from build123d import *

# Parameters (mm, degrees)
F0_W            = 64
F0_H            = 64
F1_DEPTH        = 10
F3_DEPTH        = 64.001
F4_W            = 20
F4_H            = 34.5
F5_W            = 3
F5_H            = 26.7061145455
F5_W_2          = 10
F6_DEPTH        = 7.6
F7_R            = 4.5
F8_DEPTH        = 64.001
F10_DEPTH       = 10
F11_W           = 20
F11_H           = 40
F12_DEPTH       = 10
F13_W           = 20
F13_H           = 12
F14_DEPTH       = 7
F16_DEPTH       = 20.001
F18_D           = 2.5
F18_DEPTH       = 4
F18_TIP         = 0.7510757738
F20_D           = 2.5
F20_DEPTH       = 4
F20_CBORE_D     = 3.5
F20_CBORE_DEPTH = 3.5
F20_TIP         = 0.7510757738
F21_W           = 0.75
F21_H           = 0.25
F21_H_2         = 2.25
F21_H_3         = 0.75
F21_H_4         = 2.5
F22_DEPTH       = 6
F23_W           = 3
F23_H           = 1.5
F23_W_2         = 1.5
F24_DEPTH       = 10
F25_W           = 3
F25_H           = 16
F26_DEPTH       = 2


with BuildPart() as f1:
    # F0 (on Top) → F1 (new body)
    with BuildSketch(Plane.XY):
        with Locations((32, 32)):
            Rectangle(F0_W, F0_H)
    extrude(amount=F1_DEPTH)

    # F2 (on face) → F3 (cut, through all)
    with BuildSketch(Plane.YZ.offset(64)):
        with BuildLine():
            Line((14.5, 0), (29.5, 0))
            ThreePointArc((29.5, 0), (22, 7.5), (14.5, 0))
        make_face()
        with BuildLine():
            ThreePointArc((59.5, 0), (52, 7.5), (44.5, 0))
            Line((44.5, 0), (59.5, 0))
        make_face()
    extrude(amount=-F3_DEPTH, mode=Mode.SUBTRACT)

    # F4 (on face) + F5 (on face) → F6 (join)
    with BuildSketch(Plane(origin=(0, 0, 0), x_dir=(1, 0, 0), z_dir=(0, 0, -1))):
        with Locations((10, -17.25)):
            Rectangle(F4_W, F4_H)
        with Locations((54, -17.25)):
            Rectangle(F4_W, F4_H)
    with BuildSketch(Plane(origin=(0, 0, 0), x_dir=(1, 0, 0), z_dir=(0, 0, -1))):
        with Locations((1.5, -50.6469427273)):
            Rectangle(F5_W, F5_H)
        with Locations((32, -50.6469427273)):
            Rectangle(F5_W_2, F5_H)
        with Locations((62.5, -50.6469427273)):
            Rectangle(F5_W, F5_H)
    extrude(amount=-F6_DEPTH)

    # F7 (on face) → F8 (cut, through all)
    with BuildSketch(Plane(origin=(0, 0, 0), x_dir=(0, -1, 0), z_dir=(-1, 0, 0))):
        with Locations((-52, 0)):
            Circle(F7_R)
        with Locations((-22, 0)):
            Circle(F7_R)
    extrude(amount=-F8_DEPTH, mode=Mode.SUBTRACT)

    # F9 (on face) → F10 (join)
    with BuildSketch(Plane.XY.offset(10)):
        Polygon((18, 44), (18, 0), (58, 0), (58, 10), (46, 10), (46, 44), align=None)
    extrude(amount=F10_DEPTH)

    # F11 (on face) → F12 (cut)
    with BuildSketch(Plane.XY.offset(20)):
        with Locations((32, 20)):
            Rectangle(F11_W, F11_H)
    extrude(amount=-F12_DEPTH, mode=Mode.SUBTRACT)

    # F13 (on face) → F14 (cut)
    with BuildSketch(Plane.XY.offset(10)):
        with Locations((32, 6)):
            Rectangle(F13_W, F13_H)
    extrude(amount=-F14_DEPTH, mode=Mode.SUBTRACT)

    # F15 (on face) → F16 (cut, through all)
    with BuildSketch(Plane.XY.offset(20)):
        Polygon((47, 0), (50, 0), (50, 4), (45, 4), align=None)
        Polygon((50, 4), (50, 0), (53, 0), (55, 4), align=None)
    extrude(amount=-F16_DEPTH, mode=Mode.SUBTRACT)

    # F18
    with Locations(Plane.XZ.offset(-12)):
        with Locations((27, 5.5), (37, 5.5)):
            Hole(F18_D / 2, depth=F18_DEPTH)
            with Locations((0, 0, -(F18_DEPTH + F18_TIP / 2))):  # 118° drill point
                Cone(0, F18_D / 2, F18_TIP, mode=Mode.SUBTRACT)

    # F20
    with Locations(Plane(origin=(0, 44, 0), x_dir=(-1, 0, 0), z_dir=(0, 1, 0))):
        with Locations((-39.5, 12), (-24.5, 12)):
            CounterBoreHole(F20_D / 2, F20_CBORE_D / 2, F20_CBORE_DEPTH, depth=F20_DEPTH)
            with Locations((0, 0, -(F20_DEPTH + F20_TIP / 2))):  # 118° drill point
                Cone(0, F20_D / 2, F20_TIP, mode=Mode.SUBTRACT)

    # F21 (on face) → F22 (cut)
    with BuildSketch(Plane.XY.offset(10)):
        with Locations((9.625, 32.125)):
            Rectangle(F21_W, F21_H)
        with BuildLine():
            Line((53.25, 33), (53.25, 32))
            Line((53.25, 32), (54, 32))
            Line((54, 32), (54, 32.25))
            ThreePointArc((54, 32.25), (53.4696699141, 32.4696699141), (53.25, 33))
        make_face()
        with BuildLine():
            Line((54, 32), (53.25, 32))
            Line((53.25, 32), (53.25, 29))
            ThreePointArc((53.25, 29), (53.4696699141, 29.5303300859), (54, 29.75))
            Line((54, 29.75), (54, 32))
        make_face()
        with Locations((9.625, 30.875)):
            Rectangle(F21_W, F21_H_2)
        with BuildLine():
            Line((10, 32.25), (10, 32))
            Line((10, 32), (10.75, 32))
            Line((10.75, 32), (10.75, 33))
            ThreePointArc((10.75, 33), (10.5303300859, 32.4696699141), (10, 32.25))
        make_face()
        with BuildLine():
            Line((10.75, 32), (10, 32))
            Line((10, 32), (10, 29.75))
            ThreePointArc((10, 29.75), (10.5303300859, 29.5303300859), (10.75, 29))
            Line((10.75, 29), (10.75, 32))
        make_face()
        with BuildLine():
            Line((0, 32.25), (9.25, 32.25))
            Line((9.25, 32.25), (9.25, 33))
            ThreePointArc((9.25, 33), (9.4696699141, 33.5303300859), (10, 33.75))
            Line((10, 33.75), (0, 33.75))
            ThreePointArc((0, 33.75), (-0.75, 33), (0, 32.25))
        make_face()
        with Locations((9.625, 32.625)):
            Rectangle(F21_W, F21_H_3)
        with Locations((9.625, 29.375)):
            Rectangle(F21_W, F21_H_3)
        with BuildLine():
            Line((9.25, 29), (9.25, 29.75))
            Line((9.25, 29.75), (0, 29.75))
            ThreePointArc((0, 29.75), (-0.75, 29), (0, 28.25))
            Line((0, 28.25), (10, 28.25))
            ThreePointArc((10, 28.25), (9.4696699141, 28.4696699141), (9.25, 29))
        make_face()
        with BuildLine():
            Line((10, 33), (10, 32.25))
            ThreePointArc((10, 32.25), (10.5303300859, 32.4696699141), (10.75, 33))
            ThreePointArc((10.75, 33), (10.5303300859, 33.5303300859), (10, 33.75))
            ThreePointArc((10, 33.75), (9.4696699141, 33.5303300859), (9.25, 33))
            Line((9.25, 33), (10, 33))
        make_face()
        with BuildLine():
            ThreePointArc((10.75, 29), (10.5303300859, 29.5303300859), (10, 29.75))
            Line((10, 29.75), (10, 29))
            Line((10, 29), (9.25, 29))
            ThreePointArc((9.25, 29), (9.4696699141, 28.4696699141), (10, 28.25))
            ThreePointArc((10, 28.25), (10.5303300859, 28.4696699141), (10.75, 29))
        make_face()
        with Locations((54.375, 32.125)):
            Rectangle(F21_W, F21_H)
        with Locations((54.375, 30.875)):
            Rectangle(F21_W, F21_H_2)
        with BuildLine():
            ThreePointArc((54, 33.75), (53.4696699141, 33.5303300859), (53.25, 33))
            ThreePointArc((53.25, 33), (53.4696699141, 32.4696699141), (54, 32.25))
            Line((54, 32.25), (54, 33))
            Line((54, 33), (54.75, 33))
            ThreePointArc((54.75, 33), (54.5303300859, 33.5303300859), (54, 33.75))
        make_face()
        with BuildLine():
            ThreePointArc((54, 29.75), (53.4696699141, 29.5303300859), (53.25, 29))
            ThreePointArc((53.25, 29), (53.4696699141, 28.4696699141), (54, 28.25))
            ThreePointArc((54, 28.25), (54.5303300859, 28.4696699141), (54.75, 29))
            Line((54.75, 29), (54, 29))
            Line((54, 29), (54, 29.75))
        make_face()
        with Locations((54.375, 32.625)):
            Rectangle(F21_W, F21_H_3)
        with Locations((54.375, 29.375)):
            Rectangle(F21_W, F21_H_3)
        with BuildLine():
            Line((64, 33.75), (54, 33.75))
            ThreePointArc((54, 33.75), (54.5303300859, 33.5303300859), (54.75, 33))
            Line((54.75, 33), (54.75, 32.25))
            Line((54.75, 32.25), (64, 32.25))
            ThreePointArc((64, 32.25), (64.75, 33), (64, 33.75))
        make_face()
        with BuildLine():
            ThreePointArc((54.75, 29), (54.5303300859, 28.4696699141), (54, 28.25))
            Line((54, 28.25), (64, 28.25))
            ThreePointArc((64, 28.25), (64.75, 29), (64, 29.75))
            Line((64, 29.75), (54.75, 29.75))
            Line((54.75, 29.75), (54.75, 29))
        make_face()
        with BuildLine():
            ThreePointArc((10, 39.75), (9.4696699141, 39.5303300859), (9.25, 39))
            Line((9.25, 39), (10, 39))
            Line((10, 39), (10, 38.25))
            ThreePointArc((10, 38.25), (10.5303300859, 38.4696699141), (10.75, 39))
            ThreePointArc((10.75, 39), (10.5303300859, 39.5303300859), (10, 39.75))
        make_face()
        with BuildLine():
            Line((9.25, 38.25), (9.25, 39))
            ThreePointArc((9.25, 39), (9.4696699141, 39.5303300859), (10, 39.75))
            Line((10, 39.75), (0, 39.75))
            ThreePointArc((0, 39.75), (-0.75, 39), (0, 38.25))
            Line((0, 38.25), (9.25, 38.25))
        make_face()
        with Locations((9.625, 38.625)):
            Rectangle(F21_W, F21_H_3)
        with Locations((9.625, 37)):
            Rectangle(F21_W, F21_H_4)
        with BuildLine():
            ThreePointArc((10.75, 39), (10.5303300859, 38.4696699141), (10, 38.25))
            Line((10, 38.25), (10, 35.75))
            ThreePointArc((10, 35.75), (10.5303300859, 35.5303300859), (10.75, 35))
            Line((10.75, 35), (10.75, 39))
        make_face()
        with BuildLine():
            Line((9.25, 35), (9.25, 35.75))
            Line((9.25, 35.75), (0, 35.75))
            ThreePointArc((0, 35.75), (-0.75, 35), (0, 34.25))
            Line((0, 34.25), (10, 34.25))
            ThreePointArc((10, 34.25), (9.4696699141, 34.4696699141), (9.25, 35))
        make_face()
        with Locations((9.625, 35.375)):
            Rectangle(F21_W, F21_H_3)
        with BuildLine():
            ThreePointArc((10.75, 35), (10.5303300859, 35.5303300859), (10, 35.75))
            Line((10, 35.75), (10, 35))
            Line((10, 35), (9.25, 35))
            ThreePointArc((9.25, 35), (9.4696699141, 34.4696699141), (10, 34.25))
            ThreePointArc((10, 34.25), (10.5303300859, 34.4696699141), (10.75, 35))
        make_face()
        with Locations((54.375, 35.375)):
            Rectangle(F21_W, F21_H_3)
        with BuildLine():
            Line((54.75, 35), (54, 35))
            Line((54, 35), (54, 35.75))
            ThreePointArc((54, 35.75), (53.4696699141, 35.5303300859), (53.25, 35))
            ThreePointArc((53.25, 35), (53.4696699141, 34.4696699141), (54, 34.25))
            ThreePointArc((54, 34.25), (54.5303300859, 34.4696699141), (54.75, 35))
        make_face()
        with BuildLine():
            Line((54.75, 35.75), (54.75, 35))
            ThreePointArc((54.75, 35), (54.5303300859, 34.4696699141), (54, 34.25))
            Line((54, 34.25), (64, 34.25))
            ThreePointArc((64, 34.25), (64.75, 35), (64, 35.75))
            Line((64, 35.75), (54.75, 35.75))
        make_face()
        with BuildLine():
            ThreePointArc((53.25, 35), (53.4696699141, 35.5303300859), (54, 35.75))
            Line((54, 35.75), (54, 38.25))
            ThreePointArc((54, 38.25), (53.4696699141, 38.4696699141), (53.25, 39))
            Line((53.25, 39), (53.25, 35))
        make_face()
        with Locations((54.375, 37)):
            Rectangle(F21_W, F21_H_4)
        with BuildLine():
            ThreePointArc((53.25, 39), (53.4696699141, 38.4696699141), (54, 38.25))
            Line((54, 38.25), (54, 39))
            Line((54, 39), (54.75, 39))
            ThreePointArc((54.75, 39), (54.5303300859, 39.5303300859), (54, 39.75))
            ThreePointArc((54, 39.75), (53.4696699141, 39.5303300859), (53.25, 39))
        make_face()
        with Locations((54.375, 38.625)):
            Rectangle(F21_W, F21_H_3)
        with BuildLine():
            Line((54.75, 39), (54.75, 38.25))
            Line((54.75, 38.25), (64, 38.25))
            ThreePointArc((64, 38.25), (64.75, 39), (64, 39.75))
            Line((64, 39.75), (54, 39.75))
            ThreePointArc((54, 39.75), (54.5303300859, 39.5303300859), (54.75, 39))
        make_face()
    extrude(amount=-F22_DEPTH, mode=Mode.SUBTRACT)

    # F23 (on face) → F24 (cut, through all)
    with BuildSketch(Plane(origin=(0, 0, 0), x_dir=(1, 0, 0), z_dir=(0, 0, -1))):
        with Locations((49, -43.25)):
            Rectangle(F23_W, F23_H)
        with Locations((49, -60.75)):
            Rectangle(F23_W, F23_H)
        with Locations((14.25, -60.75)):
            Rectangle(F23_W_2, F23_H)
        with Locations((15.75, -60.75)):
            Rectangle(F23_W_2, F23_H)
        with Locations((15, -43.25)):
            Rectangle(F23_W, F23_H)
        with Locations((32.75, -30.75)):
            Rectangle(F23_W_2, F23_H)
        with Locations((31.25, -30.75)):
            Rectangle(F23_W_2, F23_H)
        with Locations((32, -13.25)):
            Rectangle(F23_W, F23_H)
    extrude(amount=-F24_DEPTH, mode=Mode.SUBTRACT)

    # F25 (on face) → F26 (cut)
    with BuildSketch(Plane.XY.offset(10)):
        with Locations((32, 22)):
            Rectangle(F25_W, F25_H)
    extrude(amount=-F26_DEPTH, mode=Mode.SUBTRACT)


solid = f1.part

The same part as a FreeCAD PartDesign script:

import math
import FreeCAD as App
import Part
import Sketcher

V = App.Vector
Q = App.Units.Quantity

doc = App.newDocument("Part")
body = doc.addObject("PartDesign::Body", "Body")

# Sketch on XY plane
sketch1 = body.newObject("Sketcher::SketchObject", "Sketch")
sketch1.AttachmentSupport = (doc.getObject("XY_Plane"), [""])
sketch1.MapMode = "FlatFace"
sketch1.addGeometry([
    Part.LineSegment(V(0, 64, 0), V(0, 0, 0)),
    Part.LineSegment(V(0, 0, 0), V(64, 0, 0)),
    Part.LineSegment(V(64, 0, 0), V(64, 64, 0)),
    Part.LineSegment(V(64, 64, 0), V(0, 64, 0)),
], False)
sketch1.addConstraint([
    Sketcher.Constraint("Coincident", 0, 2, 1, 1),
    Sketcher.Constraint("Coincident", 1, 2, 2, 1),
    Sketcher.Constraint("Coincident", 2, 2, 3, 1),
    Sketcher.Constraint("Coincident", 3, 2, 0, 1),
    Sketcher.Constraint("Vertical", 0),
    Sketcher.Constraint("Horizontal", 1),
    Sketcher.Constraint("Vertical", 2),
    Sketcher.Constraint("Horizontal", 3),
    Sketcher.Constraint("Coincident", 0, 2, -1, 1),
    Sketcher.Constraint("Equal", 3, 0),
    Sketcher.Constraint("DistanceX", 1, 1, 1, 2, Q("64 mm")),
])
pad1 = body.newObject("PartDesign::Pad", "Pad")
pad1.Profile = sketch1
pad1.Length = 10

# Sketch on YZ plane
sketch2 = body.newObject("Sketcher::SketchObject", "Sketch001")
sketch2.AttachmentSupport = (doc.getObject("YZ_Plane"), [""])
sketch2.MapMode = "FlatFace"
sketch2.AttachmentOffset = App.Placement(V(0, 0, 64), App.Rotation())
sketch2.addGeometry([
    Part.LineSegment(V(14, 0, 0), V(30, 0, 0)),
    Part.ArcOfCircle(Part.Circle(V(22, 0, 0), V(0, 0, 1), 8), math.radians(0), math.radians(180)),
    Part.ArcOfCircle(Part.Circle(V(52, 0, 0), V(0, 0, 1), 8), math.radians(0), math.radians(180)),
    Part.LineSegment(V(44, 0, 0), V(60, 0, 0)),
], False)
sketch2.addConstraint([
    Sketcher.Constraint("Coincident", 0, 1, 1, 2),
    Sketcher.Constraint("Coincident", 1, 1, 0, 2),
    Sketcher.Constraint("Coincident", 2, 1, 3, 2),
    Sketcher.Constraint("Coincident", 3, 1, 2, 2),
    Sketcher.Constraint("Horizontal", 0),
    Sketcher.Constraint("Horizontal", 3),
    Sketcher.Constraint("Equal", 1, 2),
    Sketcher.Constraint("PointOnObject", 1, 3, -1),
    Sketcher.Constraint("PointOnObject", 2, 3, -1),
    Sketcher.Constraint("PointOnObject", 0, 1, -1),
    Sketcher.Constraint("PointOnObject", 2, 1, -1),
    Sketcher.Constraint("Radius", 1, Q("7.5 mm")),
    Sketcher.Constraint("DistanceX", -1, 1, 1, 3, Q("22 mm")),
    Sketcher.Constraint("DistanceX", -1, 1, 2, 3, Q("52 mm")),
])
pocket1 = body.newObject("PartDesign::Pocket", "Pocket")
pocket1.Profile = sketch2
pocket1.Type = "ThroughAll"

# Sketch on XY plane
sketch3 = body.newObject("Sketcher::SketchObject", "Sketch002")
sketch3.AttachmentSupport = (doc.getObject("XY_Plane"), [""])
sketch3.MapMode = "FlatFace"
sketch3.addGeometry([
    Part.LineSegment(V(0, 0, 0), V(0, 34.5, 0)),  # 0
    Part.LineSegment(V(0, 34.5, 0), V(20, 34.5, 0)),  # 1
    Part.LineSegment(V(20, 34.5, 0), V(20, 0, 0)),  # 2
    Part.LineSegment(V(20, 0, 0), V(0, 0, 0)),  # 3
    Part.LineSegment(V(44, 0, 0), V(44, 34.5, 0)),  # 4
    Part.LineSegment(V(44, 34.5, 0), V(64, 34.5, 0)),  # 5
    Part.LineSegment(V(64, 34.5, 0), V(64, 0, 0)),  # 6
    Part.LineSegment(V(64, 0, 0), V(44, 0, 0)),  # 7
    Part.LineSegment(V(0, 37.3, 0), V(0, 64, 0)),  # 8
    Part.LineSegment(V(0, 64, 0), V(3, 64, 0)),  # 9
    Part.LineSegment(V(3, 64, 0), V(3, 37.3, 0)),  # 10
    Part.LineSegment(V(3, 37.3, 0), V(0, 37.3, 0)),  # 11
    Part.LineSegment(V(27, 37.3, 0), V(27, 64, 0)),  # 12
    Part.LineSegment(V(27, 64, 0), V(37, 64, 0)),  # 13
    Part.LineSegment(V(37, 64, 0), V(37, 37.3, 0)),  # 14
    Part.LineSegment(V(37, 37.3, 0), V(27, 37.3, 0)),  # 15
    Part.LineSegment(V(61, 37.3, 0), V(61, 64, 0)),  # 16
    Part.LineSegment(V(61, 64, 0), V(64, 64, 0)),  # 17
    Part.LineSegment(V(64, 64, 0), V(64, 37.3, 0)),  # 18
    Part.LineSegment(V(64, 37.3, 0), V(61, 37.3, 0)),  # 19
], False)
sketch3.addConstraint([
    Sketcher.Constraint("Coincident", 0, 2, 1, 1),
    Sketcher.Constraint("Coincident", 1, 2, 2, 1),
    Sketcher.Constraint("Coincident", 2, 2, 3, 1),
    Sketcher.Constraint("Coincident", 3, 2, 0, 1),
    Sketcher.Constraint("Coincident", 4, 2, 5, 1),
    Sketcher.Constraint("Coincident", 5, 2, 6, 1),
    Sketcher.Constraint("Coincident", 6, 2, 7, 1),
    Sketcher.Constraint("Coincident", 7, 2, 4, 1),
    Sketcher.Constraint("Coincident", 8, 2, 9, 1),
    Sketcher.Constraint("Coincident", 9, 2, 10, 1),
    Sketcher.Constraint("Coincident", 10, 2, 11, 1),
    Sketcher.Constraint("Coincident", 11, 2, 8, 1),
    Sketcher.Constraint("Coincident", 12, 2, 13, 1),
    Sketcher.Constraint("Coincident", 13, 2, 14, 1),
    Sketcher.Constraint("Coincident", 14, 2, 15, 1),
    Sketcher.Constraint("Coincident", 15, 2, 12, 1),
    Sketcher.Constraint("Coincident", 16, 2, 17, 1),
    Sketcher.Constraint("Coincident", 17, 2, 18, 1),
    Sketcher.Constraint("Coincident", 18, 2, 19, 1),
    Sketcher.Constraint("Coincident", 19, 2, 16, 1),
    Sketcher.Constraint("Vertical", 0),
    Sketcher.Constraint("Horizontal", 1),
    Sketcher.Constraint("Vertical", 2),
    Sketcher.Constraint("Horizontal", 3),
    Sketcher.Constraint("Vertical", 4),
    Sketcher.Constraint("Horizontal", 5),
    Sketcher.Constraint("Vertical", 6),
    Sketcher.Constraint("Horizontal", 7),
    Sketcher.Constraint("Vertical", 8),
    Sketcher.Constraint("Horizontal", 9),
    Sketcher.Constraint("Vertical", 10),
    Sketcher.Constraint("Horizontal", 11),
    Sketcher.Constraint("Vertical", 12),
    Sketcher.Constraint("Horizontal", 13),
    Sketcher.Constraint("Vertical", 14),
    Sketcher.Constraint("Horizontal", 15),
    Sketcher.Constraint("Vertical", 16),
    Sketcher.Constraint("Horizontal", 17),
    Sketcher.Constraint("Vertical", 18),
    Sketcher.Constraint("Horizontal", 19),
    Sketcher.Constraint("Coincident", 3, 2, -1, 1),
    Sketcher.Constraint("PointOnObject", 6, 2, -1),
    Sketcher.Constraint("PointOnObject", 8, 2, -2),
    Sketcher.Constraint("Horizontal", 1, 2, 4, 2),
    Sketcher.Constraint("Horizontal", 9, 2, 12, 2),
    Sketcher.Constraint("Horizontal", 11, 2, 14, 2),
    Sketcher.Constraint("Horizontal", 13, 2, 16, 2),
    Sketcher.Constraint("Horizontal", 15, 2, 18, 2),
    Sketcher.Constraint("Vertical", 6, 2, 17, 2),
    Sketcher.Constraint("Equal", 3, 5),
    Sketcher.Constraint("Equal", 11, 17),
    Sketcher.Constraint("DistanceX", 1, 1, 1, 2, Q("20 mm")),
    Sketcher.Constraint("DistanceX", 9, 1, 9, 2, Q("3 mm")),
    Sketcher.Constraint("DistanceX", 13, 1, 13, 2, Q("10 mm")),
    Sketcher.Constraint("DistanceY", 0, 1, 0, 2, Q("34.5 mm")),
    Sketcher.Constraint("DistanceX", -1, 1, 4, 2, Q("44 mm")),
    Sketcher.Constraint("DistanceY", -1, 1, 8, 2, Q("64 mm")),
    Sketcher.Constraint("DistanceX", -1, 1, 12, 2, Q("27 mm")),
    Sketcher.Constraint("DistanceY", 8, 1, 8, 2, Q("26.706115 mm")),
])
pad2 = body.newObject("PartDesign::Pad", "Pad001")
pad2.Profile = sketch3
pad2.Length = 7.6

# Sketch on YZ plane
sketch4 = body.newObject("Sketcher::SketchObject", "Sketch003")
sketch4.AttachmentSupport = (doc.getObject("YZ_Plane"), [""])
sketch4.MapMode = "FlatFace"
sketch4.addGeometry([
    Part.Circle(V(52, 0, 0), V(0, 0, 1), 4.5),
    Part.Circle(V(22, 0, 0), V(0, 0, 1), 4.5),
], False)
sketch4.addConstraint([
    Sketcher.Constraint("Equal", 0, 1),
    Sketcher.Constraint("PointOnObject", 0, 3, -1),
    Sketcher.Constraint("PointOnObject", 1, 3, -1),
    Sketcher.Constraint("Diameter", 0, Q("9 mm")),
    Sketcher.Constraint("DistanceX", -1, 1, 0, 3, Q("52 mm")),
    Sketcher.Constraint("DistanceX", -1, 1, 1, 3, Q("22 mm")),
])
pocket2 = body.newObject("PartDesign::Pocket", "Pocket001")
pocket2.Profile = sketch4
pocket2.Type = "ThroughAll"
pocket2.Reversed = True

# Sketch on XY plane
sketch5 = body.newObject("Sketcher::SketchObject", "Sketch004")
sketch5.AttachmentSupport = (doc.getObject("XY_Plane"), [""])
sketch5.MapMode = "FlatFace"
sketch5.AttachmentOffset = App.Placement(V(0, 0, 10), App.Rotation())
sketch5.addGeometry([
    Part.LineSegment(V(18, 44, 0), V(18, 0, 0)),  # 0
    Part.LineSegment(V(18, 0, 0), V(58, 0, 0)),  # 1
    Part.LineSegment(V(58, 0, 0), V(58, 10, 0)),  # 2
    Part.LineSegment(V(58, 10, 0), V(46, 10, 0)),  # 3
    Part.LineSegment(V(46, 10, 0), V(46, 44, 0)),  # 4
    Part.LineSegment(V(46, 44, 0), V(18, 44, 0)),  # 5
], False)
sketch5.addConstraint([
    Sketcher.Constraint("Coincident", 0, 2, 1, 1),
    Sketcher.Constraint("Coincident", 1, 2, 2, 1),
    Sketcher.Constraint("Coincident", 2, 2, 3, 1),
    Sketcher.Constraint("Coincident", 3, 2, 4, 1),
    Sketcher.Constraint("Coincident", 4, 2, 5, 1),
    Sketcher.Constraint("Coincident", 5, 2, 0, 1),
    Sketcher.Constraint("Vertical", 0),
    Sketcher.Constraint("Horizontal", 1),
    Sketcher.Constraint("Vertical", 2),
    Sketcher.Constraint("Horizontal", 3),
    Sketcher.Constraint("Vertical", 4),
    Sketcher.Constraint("Horizontal", 5),
    Sketcher.Constraint("PointOnObject", 0, 2, -1),
    Sketcher.Constraint("DistanceX", 1, 1, 1, 2, Q("40 mm")),
    Sketcher.Constraint("DistanceX", 3, 2, 3, 1, Q("12 mm")),
    Sketcher.Constraint("DistanceY", 0, 2, 0, 1, Q("44 mm")),
    Sketcher.Constraint("DistanceY", 2, 1, 2, 2, Q("10 mm")),
    Sketcher.Constraint("DistanceX", -1, 1, 0, 2, Q("18 mm")),
])
pad3 = body.newObject("PartDesign::Pad", "Pad002")
pad3.Profile = sketch5
pad3.Length = 10

# Sketch on XY plane
sketch6 = body.newObject("Sketcher::SketchObject", "Sketch005")
sketch6.AttachmentSupport = (doc.getObject("XY_Plane"), [""])
sketch6.MapMode = "FlatFace"
sketch6.AttachmentOffset = App.Placement(V(0, 0, 20), App.Rotation())
sketch6.addGeometry([
    Part.LineSegment(V(22, 40, 0), V(22, 0, 0)),
    Part.LineSegment(V(22, 0, 0), V(42, 0, 0)),
    Part.LineSegment(V(42, 0, 0), V(42, 40, 0)),
    Part.LineSegment(V(42, 40, 0), V(22, 40, 0)),
], False)
sketch6.addConstraint([
    Sketcher.Constraint("Coincident", 0, 2, 1, 1),
    Sketcher.Constraint("Coincident", 1, 2, 2, 1),
    Sketcher.Constraint("Coincident", 2, 2, 3, 1),
    Sketcher.Constraint("Coincident", 3, 2, 0, 1),
    Sketcher.Constraint("Vertical", 0),
    Sketcher.Constraint("Horizontal", 1),
    Sketcher.Constraint("Vertical", 2),
    Sketcher.Constraint("Horizontal", 3),
    Sketcher.Constraint("PointOnObject", 0, 2, -1),
    Sketcher.Constraint("DistanceX", 1, 1, 1, 2, Q("20 mm")),
    Sketcher.Constraint("DistanceY", 0, 2, 0, 1, Q("40 mm")),
    Sketcher.Constraint("DistanceX", -1, 1, 0, 2, Q("22 mm")),
])
pocket3 = body.newObject("PartDesign::Pocket", "Pocket002")
pocket3.Profile = sketch6
pocket3.Length = 10

# Sketch on XY plane
sketch7 = body.newObject("Sketcher::SketchObject", "Sketch006")
sketch7.AttachmentSupport = (doc.getObject("XY_Plane"), [""])
sketch7.MapMode = "FlatFace"
sketch7.AttachmentOffset = App.Placement(V(0, 0, 10), App.Rotation())
sketch7.addGeometry([
    Part.LineSegment(V(22, 12, 0), V(22, 0, 0)),
    Part.LineSegment(V(22, 0, 0), V(42, 0, 0)),
    Part.LineSegment(V(42, 0, 0), V(42, 12, 0)),
    Part.LineSegment(V(42, 12, 0), V(22, 12, 0)),
], False)
sketch7.addConstraint([
    Sketcher.Constraint("Coincident", 0, 2, 1, 1),
    Sketcher.Constraint("Coincident", 1, 2, 2, 1),
    Sketcher.Constraint("Coincident", 2, 2, 3, 1),
    Sketcher.Constraint("Coincident", 3, 2, 0, 1),
    Sketcher.Constraint("Vertical", 0),
    Sketcher.Constraint("Horizontal", 1),
    Sketcher.Constraint("Vertical", 2),
    Sketcher.Constraint("Horizontal", 3),
    Sketcher.Constraint("PointOnObject", 0, 2, -1),
    Sketcher.Constraint("DistanceX", 1, 1, 1, 2, Q("20 mm")),
    Sketcher.Constraint("DistanceY", 0, 2, 0, 1, Q("12 mm")),
    Sketcher.Constraint("DistanceX", -1, 1, 0, 2, Q("22 mm")),
])
pocket4 = body.newObject("PartDesign::Pocket", "Pocket003")
pocket4.Profile = sketch7
pocket4.Length = 7

# Sketch on XY plane
sketch8 = body.newObject("Sketcher::SketchObject", "Sketch007")
sketch8.AttachmentSupport = (doc.getObject("XY_Plane"), [""])
sketch8.MapMode = "FlatFace"
sketch8.AttachmentOffset = App.Placement(V(0, 0, 20), App.Rotation())
sketch8.addGeometry([
    Part.LineSegment(V(47, 0, 0), V(53, 0, 0)),
    Part.LineSegment(V(53, 0, 0), V(55, 4, 0)),
    Part.LineSegment(V(55, 4, 0), V(45, 4, 0)),
    Part.LineSegment(V(45, 4, 0), V(47, 0, 0)),
], False)
sketch8.addConstraint([
    Sketcher.Constraint("Coincident", 0, 2, 1, 1),
    Sketcher.Constraint("Coincident", 1, 2, 2, 1),
    Sketcher.Constraint("Coincident", 2, 2, 3, 1),
    Sketcher.Constraint("Coincident", 3, 2, 0, 1),
    Sketcher.Constraint("Horizontal", 0),
    Sketcher.Constraint("Horizontal", 2),
    Sketcher.Constraint("PointOnObject", 0, 2, -1),
    Sketcher.Constraint("Equal", 1, 3),
    Sketcher.Constraint("DistanceX", 0, 1, 0, 2, Q("6 mm")),
    Sketcher.Constraint("DistanceX", 2, 2, 2, 1, Q("10 mm")),
    Sketcher.Constraint("DistanceX", -1, 1, 0, 2, Q("53 mm")),
    Sketcher.Constraint("DistanceY", -1, 1, 1, 2, Q("4 mm")),
])
pocket5 = body.newObject("PartDesign::Pocket", "Pocket004")
pocket5.Profile = sketch8
pocket5.Type = "ThroughAll"

# Sketch on XZ plane
sketch9 = body.newObject("Sketcher::SketchObject", "Sketch008")
sketch9.AttachmentSupport = (doc.getObject("XZ_Plane"), [""])
sketch9.MapMode = "FlatFace"
sketch9.AttachmentOffset = App.Placement(V(0, 0, -12), App.Rotation())
sketch9.addGeometry([
    Part.Circle(V(27, 5.5, 0), V(0, 0, 1), 1.2),
    Part.Circle(V(37, 5.5, 0), V(0, 0, 1), 1.2),
], False)
sketch9.addConstraint([
    Sketcher.Constraint("Equal", 0, 1),
    Sketcher.Constraint("Horizontal", 0, 3, 1, 3),
    Sketcher.Constraint("Diameter", 0, Q("2.5 mm")),
    Sketcher.Constraint("DistanceX", -1, 1, 0, 3, Q("27 mm")),
    Sketcher.Constraint("DistanceX", -1, 1, 1, 3, Q("37 mm")),
    Sketcher.Constraint("DistanceY", -1, 1, 0, 3, Q("5.5 mm")),
])
doc.recompute()
hole = body.newObject("PartDesign::Hole", "Hole")
hole.Profile = sketch9
hole.ThreadType = "None"
hole.Diameter = 2.5
hole.DepthType = "Dimension"
hole.Depth = 4
hole.DrillPoint = "Angled"
hole.DrillPointAngle = 118

# Sketch on XZ plane
sketch10 = body.newObject("Sketcher::SketchObject", "Sketch009")
sketch10.AttachmentSupport = (doc.getObject("XZ_Plane"), [""])
sketch10.MapMode = "FlatFace"
sketch10.AttachmentOffset = App.Placement(V(0, 0, -44), App.Rotation())
sketch10.addGeometry([
    Part.Circle(V(39.5, 12, 0), V(0, 0, 1), 1.2),
    Part.Circle(V(24.5, 12, 0), V(0, 0, 1), 1.2),
], False)
sketch10.addConstraint([
    Sketcher.Constraint("Equal", 0, 1),
    Sketcher.Constraint("Horizontal", 0, 3, 1, 3),
    Sketcher.Constraint("Diameter", 0, Q("2.5 mm")),
    Sketcher.Constraint("DistanceY", -1, 1, 0, 3, Q("12 mm")),
    Sketcher.Constraint("DistanceX", 1, 3, 0, 3, Q("15 mm")),
    Sketcher.Constraint("DistanceX", -1, 1, 0, 3, Q("39.5 mm")),
])
doc.recompute()
hole2 = body.newObject("PartDesign::Hole", "Hole001")
hole2.Profile = sketch10
hole2.ThreadType = "None"
hole2.Diameter = 2.5
hole2.DepthType = "Dimension"
hole2.Depth = 4
hole2.DrillPoint = "Angled"
hole2.DrillPointAngle = 118
hole2.HoleCutType = "Counterbore"
hole2.HoleCutDiameter = 3.5
hole2.HoleCutDepth = 3.5
hole2.Reversed = True

# Sketch on XY plane
sketch11 = body.newObject("Sketcher::SketchObject", "Sketch010")
sketch11.AttachmentSupport = (doc.getObject("XY_Plane"), [""])
sketch11.MapMode = "FlatFace"
sketch11.AttachmentOffset = App.Placement(V(0, 0, 10), App.Rotation())
sketch11.addGeometry([
    Part.LineSegment(V(9.2, 32.2, 0), V(9.2, 29.8, 0)),  # 0
    Part.LineSegment(V(9.2, 29.8, 0), V(0, 29.8, 0)),  # 1
    Part.ArcOfCircle(Part.Circle(V(0, 29, 0), V(0, 0, 1), 0.8), math.radians(90), math.radians(270)),  # 2
    Part.LineSegment(V(0, 28.2, 0), V(10, 28.2, 0)),  # 3
    Part.ArcOfCircle(Part.Circle(V(10, 29, 0), V(0, 0, 1), 0.8), math.radians(-90), math.radians(0)),  # 4
    Part.LineSegment(V(10.8, 29, 0), V(10.8, 33, 0)),  # 5
    Part.ArcOfCircle(Part.Circle(V(10, 33, 0), V(0, 0, 1), 0.8), math.radians(0), math.radians(90)),  # 6
    Part.LineSegment(V(10, 33.8, 0), V(0, 33.8, 0)),  # 7
    Part.ArcOfCircle(Part.Circle(V(0, 33, 0), V(0, 0, 1), 0.8), math.radians(90), math.radians(270)),  # 8
    Part.LineSegment(V(0, 32.2, 0), V(9.2, 32.2, 0)),  # 9
    Part.LineSegment(V(53.2, 33, 0), V(53.2, 29, 0)),  # 10
    Part.ArcOfCircle(Part.Circle(V(54, 29, 0), V(0, 0, 1), 0.8), math.radians(180), math.radians(270)),  # 11
    Part.LineSegment(V(54, 28.2, 0), V(64, 28.2, 0)),  # 12
    Part.ArcOfCircle(Part.Circle(V(64, 29, 0), V(0, 0, 1), 0.8), math.radians(-90), math.radians(90)),  # 13
    Part.LineSegment(V(64, 29.8, 0), V(54.8, 29.8, 0)),  # 14
    Part.LineSegment(V(54.8, 29.8, 0), V(54.8, 32.2, 0)),  # 15
    Part.LineSegment(V(54.8, 32.2, 0), V(64, 32.2, 0)),  # 16
    Part.ArcOfCircle(Part.Circle(V(64, 33, 0), V(0, 0, 1), 0.8), math.radians(-90), math.radians(90)),  # 17
    Part.LineSegment(V(64, 33.8, 0), V(54, 33.8, 0)),  # 18
    Part.ArcOfCircle(Part.Circle(V(54, 33, 0), V(0, 0, 1), 0.8), math.radians(90), math.radians(180)),  # 19
    Part.ArcOfCircle(Part.Circle(V(10, 39, 0), V(0, 0, 1), 0.8), math.radians(0), math.radians(90)),  # 20
    Part.LineSegment(V(10, 39.8, 0), V(0, 39.8, 0)),  # 21
    Part.ArcOfCircle(Part.Circle(V(0, 39, 0), V(0, 0, 1), 0.8), math.radians(90), math.radians(270)),  # 22
    Part.LineSegment(V(0, 38.2, 0), V(9.2, 38.2, 0)),  # 23
    Part.LineSegment(V(9.2, 38.2, 0), V(9.2, 35.8, 0)),  # 24
    Part.LineSegment(V(9.2, 35.8, 0), V(0, 35.8, 0)),  # 25
    Part.ArcOfCircle(Part.Circle(V(0, 35, 0), V(0, 0, 1), 0.8), math.radians(90), math.radians(270)),  # 26
    Part.LineSegment(V(0, 34.2, 0), V(10, 34.2, 0)),  # 27
    Part.ArcOfCircle(Part.Circle(V(10, 35, 0), V(0, 0, 1), 0.8), math.radians(-90), math.radians(0)),  # 28
    Part.LineSegment(V(10.8, 35, 0), V(10.8, 39, 0)),  # 29
    Part.ArcOfCircle(Part.Circle(V(54, 35, 0), V(0, 0, 1), 0.8), math.radians(180), math.radians(270)),  # 30
    Part.LineSegment(V(54, 34.2, 0), V(64, 34.2, 0)),  # 31
    Part.ArcOfCircle(Part.Circle(V(64, 35, 0), V(0, 0, 1), 0.8), math.radians(-90), math.radians(90)),  # 32
    Part.LineSegment(V(64, 35.8, 0), V(54.8, 35.8, 0)),  # 33
    Part.LineSegment(V(54.8, 35.8, 0), V(54.8, 38.2, 0)),  # 34
    Part.LineSegment(V(54.8, 38.2, 0), V(64, 38.2, 0)),  # 35
    Part.ArcOfCircle(Part.Circle(V(64, 39, 0), V(0, 0, 1), 0.8), math.radians(-90), math.radians(90)),  # 36
    Part.LineSegment(V(64, 39.8, 0), V(54, 39.8, 0)),  # 37
    Part.ArcOfCircle(Part.Circle(V(54, 39, 0), V(0, 0, 1), 0.8), math.radians(90), math.radians(180)),  # 38
    Part.LineSegment(V(53.2, 39, 0), V(53.2, 35, 0)),  # 39
], False)
sketch11.addConstraint([
    Sketcher.Constraint("Coincident", 0, 2, 1, 1),
    Sketcher.Constraint("Tangent", 1, 2, 2, 1),
    Sketcher.Constraint("Tangent", 2, 2, 3, 1),
    Sketcher.Constraint("Tangent", 3, 2, 4, 1),
    Sketcher.Constraint("Tangent", 4, 2, 5, 1),
    Sketcher.Constraint("Tangent", 5, 2, 6, 1),
    Sketcher.Constraint("Tangent", 6, 2, 7, 1),
    Sketcher.Constraint("Tangent", 7, 2, 8, 1),
    Sketcher.Constraint("Tangent", 8, 2, 9, 1),
    Sketcher.Constraint("Coincident", 9, 2, 0, 1),
    Sketcher.Constraint("Tangent", 10, 2, 11, 1),
    Sketcher.Constraint("Tangent", 11, 2, 12, 1),
    Sketcher.Constraint("Tangent", 12, 2, 13, 1),
    Sketcher.Constraint("Tangent", 13, 2, 14, 1),
    Sketcher.Constraint("Coincident", 14, 2, 15, 1),
    Sketcher.Constraint("Coincident", 15, 2, 16, 1),
    Sketcher.Constraint("Tangent", 16, 2, 17, 1),
    Sketcher.Constraint("Tangent", 17, 2, 18, 1),
    Sketcher.Constraint("Tangent", 18, 2, 19, 1),
    Sketcher.Constraint("Tangent", 19, 2, 10, 1),
    Sketcher.Constraint("Tangent", 20, 2, 21, 1),
    Sketcher.Constraint("Tangent", 21, 2, 22, 1),
    Sketcher.Constraint("Tangent", 22, 2, 23, 1),
    Sketcher.Constraint("Coincident", 23, 2, 24, 1),
    Sketcher.Constraint("Coincident", 24, 2, 25, 1),
    Sketcher.Constraint("Tangent", 25, 2, 26, 1),
    Sketcher.Constraint("Tangent", 26, 2, 27, 1),
    Sketcher.Constraint("Tangent", 27, 2, 28, 1),
    Sketcher.Constraint("Tangent", 28, 2, 29, 1),
    Sketcher.Constraint("Tangent", 29, 2, 20, 1),
    Sketcher.Constraint("Tangent", 30, 2, 31, 1),
    Sketcher.Constraint("Tangent", 31, 2, 32, 1),
    Sketcher.Constraint("Tangent", 32, 2, 33, 1),
    Sketcher.Constraint("Coincident", 33, 2, 34, 1),
    Sketcher.Constraint("Coincident", 34, 2, 35, 1),
    Sketcher.Constraint("Tangent", 35, 2, 36, 1),
    Sketcher.Constraint("Tangent", 36, 2, 37, 1),
    Sketcher.Constraint("Tangent", 37, 2, 38, 1),
    Sketcher.Constraint("Tangent", 38, 2, 39, 1),
    Sketcher.Constraint("Tangent", 39, 2, 30, 1),
    Sketcher.Constraint("Vertical", 0),
    Sketcher.Constraint("Horizontal", 1),
    Sketcher.Constraint("Horizontal", 3),
    Sketcher.Constraint("Vertical", 5),
    Sketcher.Constraint("Horizontal", 7),
    Sketcher.Constraint("Horizontal", 9),
    Sketcher.Constraint("Vertical", 10),
    Sketcher.Constraint("Horizontal", 12),
    Sketcher.Constraint("Horizontal", 14),
    Sketcher.Constraint("Vertical", 15),
    Sketcher.Constraint("Horizontal", 16),
    Sketcher.Constraint("Horizontal", 18),
    Sketcher.Constraint("Horizontal", 21),
    Sketcher.Constraint("Horizontal", 23),
    Sketcher.Constraint("Vertical", 24),
    Sketcher.Constraint("Horizontal", 25),
    Sketcher.Constraint("Horizontal", 27),
    Sketcher.Constraint("Vertical", 29),
    Sketcher.Constraint("Horizontal", 31),
    Sketcher.Constraint("Horizontal", 33),
    Sketcher.Constraint("Vertical", 34),
    Sketcher.Constraint("Horizontal", 35),
    Sketcher.Constraint("Horizontal", 37),
    Sketcher.Constraint("Vertical", 39),
    Sketcher.Constraint("Equal", 2, 4),
    Sketcher.Constraint("Equal", 4, 6),
    Sketcher.Constraint("Equal", 6, 8),
    Sketcher.Constraint("Equal", 8, 11),
    Sketcher.Constraint("Equal", 11, 13),
    Sketcher.Constraint("Equal", 13, 17),
    Sketcher.Constraint("Equal", 17, 19),
    Sketcher.Constraint("Equal", 19, 20),
    Sketcher.Constraint("Equal", 20, 22),
    Sketcher.Constraint("Equal", 22, 26),
    Sketcher.Constraint("Equal", 26, 28),
    Sketcher.Constraint("Equal", 28, 30),
    Sketcher.Constraint("Equal", 30, 32),
    Sketcher.Constraint("Equal", 32, 36),
    Sketcher.Constraint("Equal", 36, 38),
    Sketcher.Constraint("PointOnObject", 2, 3, -2),
    Sketcher.Constraint("PointOnObject", 8, 3, -2),
    Sketcher.Constraint("PointOnObject", 22, 3, -2),
    Sketcher.Constraint("PointOnObject", 26, 3, -2),
    Sketcher.Constraint("Horizontal", 4, 3, 11, 3),
    Sketcher.Constraint("Horizontal", 8, 3, 17, 3),
    Sketcher.Constraint("Horizontal", 28, 3, 30, 3),
    Sketcher.Constraint("Horizontal", 22, 3, 36, 3),
    Sketcher.Constraint("Vertical", 13, 3, 17, 3),
    Sketcher.Constraint("Vertical", 6, 3, 20, 3),
    Sketcher.Constraint("Vertical", 19, 3, 30, 3),
    Sketcher.Constraint("Vertical", 17, 3, 32, 3),
    Sketcher.Constraint("Vertical", 32, 3, 36, 3),
    Sketcher.Constraint("Vertical", 9, 2, 23, 2),
    Sketcher.Constraint("Vertical", 15, 2, 33, 2),
    Sketcher.Constraint("Equal", 7, 12),
    Sketcher.Constraint("Equal", 9, 14),
    Sketcher.Constraint("Equal", 15, 24),
    Sketcher.Constraint("DistanceX", 3, 1, 3, 2, Q("10 mm")),
    Sketcher.Constraint("DistanceY", 5, 1, 5, 2, Q("4 mm")),
    Sketcher.Constraint("Radius", 2, Q("0.75 mm")),
    Sketcher.Constraint("DistanceY", -1, 1, 2, 3, Q("29 mm")),
    Sketcher.Constraint("DistanceX", -1, 1, 11, 3, Q("54 mm")),
    Sketcher.Constraint("DistanceY", -1, 1, 20, 3, Q("39 mm")),
    Sketcher.Constraint("DistanceX", 1, 2, 1, 1, Q("9.25 mm")),
])
pocket6 = body.newObject("PartDesign::Pocket", "Pocket005")
pocket6.Profile = sketch11
pocket6.Length = 6

# Sketch on XY plane
sketch12 = body.newObject("Sketcher::SketchObject", "Sketch011")
sketch12.AttachmentSupport = (doc.getObject("XY_Plane"), [""])
sketch12.MapMode = "FlatFace"
sketch12.addGeometry([
    Part.LineSegment(V(47.5, 42.5, 0), V(47.5, 44, 0)),  # 0
    Part.LineSegment(V(47.5, 44, 0), V(50.5, 44, 0)),  # 1
    Part.LineSegment(V(50.5, 44, 0), V(50.5, 42.5, 0)),  # 2
    Part.LineSegment(V(50.5, 42.5, 0), V(47.5, 42.5, 0)),  # 3
    Part.LineSegment(V(47.5, 60, 0), V(47.5, 61.5, 0)),  # 4
    Part.LineSegment(V(47.5, 61.5, 0), V(50.5, 61.5, 0)),  # 5
    Part.LineSegment(V(50.5, 61.5, 0), V(50.5, 60, 0)),  # 6
    Part.LineSegment(V(50.5, 60, 0), V(47.5, 60, 0)),  # 7
    Part.LineSegment(V(13.5, 60, 0), V(13.5, 61.5, 0)),  # 8
    Part.LineSegment(V(13.5, 61.5, 0), V(16.5, 61.5, 0)),  # 9
    Part.LineSegment(V(16.5, 61.5, 0), V(16.5, 60, 0)),  # 10
    Part.LineSegment(V(16.5, 60, 0), V(13.5, 60, 0)),  # 11
    Part.LineSegment(V(13.5, 42.5, 0), V(13.5, 44, 0)),  # 12
    Part.LineSegment(V(13.5, 44, 0), V(16.5, 44, 0)),  # 13
    Part.LineSegment(V(16.5, 44, 0), V(16.5, 42.5, 0)),  # 14
    Part.LineSegment(V(16.5, 42.5, 0), V(13.5, 42.5, 0)),  # 15
    Part.LineSegment(V(33.5, 31.5, 0), V(33.5, 30, 0)),  # 16
    Part.LineSegment(V(33.5, 30, 0), V(30.5, 30, 0)),  # 17
    Part.LineSegment(V(30.5, 30, 0), V(30.5, 31.5, 0)),  # 18
    Part.LineSegment(V(30.5, 31.5, 0), V(33.5, 31.5, 0)),  # 19
    Part.LineSegment(V(30.5, 12.5, 0), V(30.5, 14, 0)),  # 20
    Part.LineSegment(V(30.5, 14, 0), V(33.5, 14, 0)),  # 21
    Part.LineSegment(V(33.5, 14, 0), V(33.5, 12.5, 0)),  # 22
    Part.LineSegment(V(33.5, 12.5, 0), V(30.5, 12.5, 0)),  # 23
], False)
sketch12.addConstraint([
    Sketcher.Constraint("Coincident", 0, 2, 1, 1),
    Sketcher.Constraint("Coincident", 1, 2, 2, 1),
    Sketcher.Constraint("Coincident", 2, 2, 3, 1),
    Sketcher.Constraint("Coincident", 3, 2, 0, 1),
    Sketcher.Constraint("Coincident", 4, 2, 5, 1),
    Sketcher.Constraint("Coincident", 5, 2, 6, 1),
    Sketcher.Constraint("Coincident", 6, 2, 7, 1),
    Sketcher.Constraint("Coincident", 7, 2, 4, 1),
    Sketcher.Constraint("Coincident", 8, 2, 9, 1),
    Sketcher.Constraint("Coincident", 9, 2, 10, 1),
    Sketcher.Constraint("Coincident", 10, 2, 11, 1),
    Sketcher.Constraint("Coincident", 11, 2, 8, 1),
    Sketcher.Constraint("Coincident", 12, 2, 13, 1),
    Sketcher.Constraint("Coincident", 13, 2, 14, 1),
    Sketcher.Constraint("Coincident", 14, 2, 15, 1),
    Sketcher.Constraint("Coincident", 15, 2, 12, 1),
    Sketcher.Constraint("Coincident", 16, 2, 17, 1),
    Sketcher.Constraint("Coincident", 17, 2, 18, 1),
    Sketcher.Constraint("Coincident", 18, 2, 19, 1),
    Sketcher.Constraint("Coincident", 19, 2, 16, 1),
    Sketcher.Constraint("Coincident", 20, 2, 21, 1),
    Sketcher.Constraint("Coincident", 21, 2, 22, 1),
    Sketcher.Constraint("Coincident", 22, 2, 23, 1),
    Sketcher.Constraint("Coincident", 23, 2, 20, 1),
    Sketcher.Constraint("Vertical", 0),
    Sketcher.Constraint("Horizontal", 1),
    Sketcher.Constraint("Vertical", 2),
    Sketcher.Constraint("Horizontal", 3),
    Sketcher.Constraint("Vertical", 4),
    Sketcher.Constraint("Horizontal", 5),
    Sketcher.Constraint("Vertical", 6),
    Sketcher.Constraint("Horizontal", 7),
    Sketcher.Constraint("Vertical", 8),
    Sketcher.Constraint("Horizontal", 9),
    Sketcher.Constraint("Vertical", 10),
    Sketcher.Constraint("Horizontal", 11),
    Sketcher.Constraint("Vertical", 12),
    Sketcher.Constraint("Horizontal", 13),
    Sketcher.Constraint("Vertical", 14),
    Sketcher.Constraint("Horizontal", 15),
    Sketcher.Constraint("Vertical", 16),
    Sketcher.Constraint("Horizontal", 17),
    Sketcher.Constraint("Vertical", 18),
    Sketcher.Constraint("Horizontal", 19),
    Sketcher.Constraint("Vertical", 20),
    Sketcher.Constraint("Horizontal", 21),
    Sketcher.Constraint("Vertical", 22),
    Sketcher.Constraint("Horizontal", 23),
    Sketcher.Constraint("Horizontal", 5, 2, 8, 2),
    Sketcher.Constraint("Horizontal", 7, 2, 10, 2),
    Sketcher.Constraint("Horizontal", 1, 2, 12, 2),
    Sketcher.Constraint("Horizontal", 3, 2, 14, 2),
    Sketcher.Constraint("Vertical", 3, 2, 4, 2),
    Sketcher.Constraint("Vertical", 2, 2, 5, 2),
    Sketcher.Constraint("Vertical", 11, 2, 12, 2),
    Sketcher.Constraint("Vertical", 10, 2, 13, 2),
    Sketcher.Constraint("Vertical", 18, 2, 20, 2),
    Sketcher.Constraint("Vertical", 19, 2, 21, 2),
    Sketcher.Constraint("Equal", 7, 9),
    Sketcher.Constraint("Equal", 15, 17),
    Sketcher.Constraint("Equal", 2, 4),
    Sketcher.Constraint("Equal", 14, 16),
    Sketcher.Constraint("Equal", 18, 20),
    Sketcher.Constraint("DistanceX", 1, 1, 1, 2, Q("3 mm")),
    Sketcher.Constraint("DistanceY", 0, 1, 0, 2, Q("1.5 mm")),
    Sketcher.Constraint("DistanceY", -1, 1, 0, 2, Q("44 mm")),
    Sketcher.Constraint("DistanceY", -1, 1, 6, 2, Q("60 mm")),
    Sketcher.Constraint("DistanceY", -1, 1, 16, 2, Q("30 mm")),
    Sketcher.Constraint("DistanceY", -1, 1, 20, 2, Q("14 mm")),
    Sketcher.Constraint("DistanceX", 8, 2, 4, 2, Q("34 mm")),
    Sketcher.Constraint("DistanceX", 16, 2, 3, 2, Q("14 mm")),
    Sketcher.Constraint("DistanceX", -1, 1, 0, 2, Q("47.5 mm")),
])
pocket7 = body.newObject("PartDesign::Pocket", "Pocket006")
pocket7.Profile = sketch12
pocket7.Type = "ThroughAll"
pocket7.Reversed = True

# Sketch on XY plane
sketch13 = body.newObject("Sketcher::SketchObject", "Sketch012")
sketch13.AttachmentSupport = (doc.getObject("XY_Plane"), [""])
sketch13.MapMode = "FlatFace"
sketch13.AttachmentOffset = App.Placement(V(0, 0, 10), App.Rotation())
sketch13.addGeometry([
    Part.LineSegment(V(30.5, 30, 0), V(30.5, 14, 0)),
    Part.LineSegment(V(30.5, 14, 0), V(33.5, 14, 0)),
    Part.LineSegment(V(33.5, 14, 0), V(33.5, 30, 0)),
    Part.LineSegment(V(33.5, 30, 0), V(30.5, 30, 0)),
], False)
sketch13.addConstraint([
    Sketcher.Constraint("Coincident", 0, 2, 1, 1),
    Sketcher.Constraint("Coincident", 1, 2, 2, 1),
    Sketcher.Constraint("Coincident", 2, 2, 3, 1),
    Sketcher.Constraint("Coincident", 3, 2, 0, 1),
    Sketcher.Constraint("Vertical", 0),
    Sketcher.Constraint("Horizontal", 1),
    Sketcher.Constraint("Vertical", 2),
    Sketcher.Constraint("Horizontal", 3),
    Sketcher.Constraint("DistanceX", 1, 1, 1, 2, Q("3 mm")),
    Sketcher.Constraint("DistanceY", 0, 2, 0, 1, Q("16 mm")),
    Sketcher.Constraint("DistanceY", -1, 1, 0, 2, Q("14 mm")),
    Sketcher.Constraint("DistanceX", -1, 1, 0, 2, Q("30.5 mm")),
])
pocket8 = body.newObject("PartDesign::Pocket", "Pocket007")
pocket8.Profile = sketch13
pocket8.Length = 2

doc.recompute()
